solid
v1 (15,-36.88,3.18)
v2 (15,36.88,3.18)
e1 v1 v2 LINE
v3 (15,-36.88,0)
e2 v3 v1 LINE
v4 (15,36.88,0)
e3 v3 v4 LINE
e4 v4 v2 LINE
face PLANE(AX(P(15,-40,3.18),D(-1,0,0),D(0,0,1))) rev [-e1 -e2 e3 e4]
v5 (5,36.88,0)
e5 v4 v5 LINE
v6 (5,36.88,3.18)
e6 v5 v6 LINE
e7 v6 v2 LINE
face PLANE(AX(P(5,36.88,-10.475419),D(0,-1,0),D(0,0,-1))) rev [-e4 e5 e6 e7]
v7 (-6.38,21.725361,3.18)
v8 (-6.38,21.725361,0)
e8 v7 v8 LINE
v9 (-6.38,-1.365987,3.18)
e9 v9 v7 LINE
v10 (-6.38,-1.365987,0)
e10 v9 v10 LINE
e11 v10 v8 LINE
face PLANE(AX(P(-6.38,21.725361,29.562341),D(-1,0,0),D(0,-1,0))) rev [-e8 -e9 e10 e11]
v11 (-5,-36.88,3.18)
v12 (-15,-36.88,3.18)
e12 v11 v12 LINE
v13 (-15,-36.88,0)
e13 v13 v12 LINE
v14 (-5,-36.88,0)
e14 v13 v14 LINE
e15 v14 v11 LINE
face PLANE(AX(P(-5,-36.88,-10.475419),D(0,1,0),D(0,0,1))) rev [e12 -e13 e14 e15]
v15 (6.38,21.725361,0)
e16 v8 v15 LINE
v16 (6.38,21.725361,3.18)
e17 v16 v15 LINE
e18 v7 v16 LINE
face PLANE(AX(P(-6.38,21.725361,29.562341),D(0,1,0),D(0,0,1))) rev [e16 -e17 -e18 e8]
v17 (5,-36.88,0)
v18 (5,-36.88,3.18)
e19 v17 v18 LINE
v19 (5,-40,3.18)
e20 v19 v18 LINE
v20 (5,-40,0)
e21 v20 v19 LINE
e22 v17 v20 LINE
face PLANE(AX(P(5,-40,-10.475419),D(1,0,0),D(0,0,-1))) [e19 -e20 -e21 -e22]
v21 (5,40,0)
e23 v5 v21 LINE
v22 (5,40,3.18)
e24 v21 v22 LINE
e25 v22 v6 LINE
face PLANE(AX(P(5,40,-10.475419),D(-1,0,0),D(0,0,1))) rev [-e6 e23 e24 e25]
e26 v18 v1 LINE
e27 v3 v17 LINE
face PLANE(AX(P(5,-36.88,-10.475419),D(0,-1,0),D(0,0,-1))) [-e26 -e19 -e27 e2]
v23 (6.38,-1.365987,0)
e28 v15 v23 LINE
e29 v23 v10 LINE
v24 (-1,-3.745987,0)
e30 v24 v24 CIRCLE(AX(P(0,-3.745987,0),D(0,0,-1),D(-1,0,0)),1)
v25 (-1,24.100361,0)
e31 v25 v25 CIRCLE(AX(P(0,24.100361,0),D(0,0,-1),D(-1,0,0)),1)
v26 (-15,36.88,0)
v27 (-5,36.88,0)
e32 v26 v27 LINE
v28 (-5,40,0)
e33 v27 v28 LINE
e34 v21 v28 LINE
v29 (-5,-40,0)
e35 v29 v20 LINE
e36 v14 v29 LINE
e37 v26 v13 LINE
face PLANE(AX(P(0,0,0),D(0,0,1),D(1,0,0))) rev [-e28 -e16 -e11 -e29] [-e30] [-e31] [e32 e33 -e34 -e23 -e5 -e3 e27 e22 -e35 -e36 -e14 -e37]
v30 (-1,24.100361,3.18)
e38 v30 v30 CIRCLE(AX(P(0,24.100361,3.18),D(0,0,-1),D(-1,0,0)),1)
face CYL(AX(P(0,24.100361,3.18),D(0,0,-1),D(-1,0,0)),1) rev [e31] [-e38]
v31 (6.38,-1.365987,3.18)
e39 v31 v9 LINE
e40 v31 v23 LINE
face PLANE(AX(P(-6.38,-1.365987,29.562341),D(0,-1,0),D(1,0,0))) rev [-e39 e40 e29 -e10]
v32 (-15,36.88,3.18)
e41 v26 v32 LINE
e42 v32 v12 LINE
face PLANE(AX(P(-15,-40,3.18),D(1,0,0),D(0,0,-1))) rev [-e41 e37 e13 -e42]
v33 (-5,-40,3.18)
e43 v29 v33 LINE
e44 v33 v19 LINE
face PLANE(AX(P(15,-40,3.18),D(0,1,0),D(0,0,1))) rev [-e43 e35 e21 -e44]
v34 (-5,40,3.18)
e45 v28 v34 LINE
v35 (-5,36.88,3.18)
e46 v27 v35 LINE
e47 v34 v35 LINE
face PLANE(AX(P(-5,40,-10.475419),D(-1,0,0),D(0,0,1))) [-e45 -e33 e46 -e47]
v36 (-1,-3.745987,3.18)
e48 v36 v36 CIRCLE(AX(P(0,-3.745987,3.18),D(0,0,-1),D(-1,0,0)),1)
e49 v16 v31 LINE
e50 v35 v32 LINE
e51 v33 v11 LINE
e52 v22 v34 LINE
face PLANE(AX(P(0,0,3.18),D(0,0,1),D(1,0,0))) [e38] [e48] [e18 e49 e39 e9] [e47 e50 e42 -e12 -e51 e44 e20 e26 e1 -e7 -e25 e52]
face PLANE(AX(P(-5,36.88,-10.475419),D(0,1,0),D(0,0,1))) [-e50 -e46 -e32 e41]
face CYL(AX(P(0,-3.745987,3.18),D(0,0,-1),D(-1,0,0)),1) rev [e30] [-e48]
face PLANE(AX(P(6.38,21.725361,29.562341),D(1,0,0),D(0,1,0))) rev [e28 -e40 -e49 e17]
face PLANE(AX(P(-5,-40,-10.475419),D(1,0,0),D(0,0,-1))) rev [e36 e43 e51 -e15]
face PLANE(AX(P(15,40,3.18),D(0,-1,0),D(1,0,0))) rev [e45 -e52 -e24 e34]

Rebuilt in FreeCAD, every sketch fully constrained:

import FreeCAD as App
import Part
import Sketcher

V = App.Vector
Q = App.Units.Quantity

doc = App.newDocument("Part")
body = doc.addObject("PartDesign::Body", "Body")

sketch1 = doc.addObject("Sketcher::SketchObject", "Sketch")
body.addObject(sketch1)
sketch1.AttachmentSupport = (doc.XY_Plane, [""])
sketch1.MapMode = "FlatFace"
sketch1.addGeometry([
    Part.LineSegment(V(-15, 40, 0), V(-15, -40, 0)),
    Part.LineSegment(V(-15, -40, 0), V(15, -40, 0)),
    Part.LineSegment(V(15, -40, 0), V(15, 40, 0)),
    Part.LineSegment(V(15, 40, 0), V(-15, 40, 0)),
], False)
sketch1.addConstraint([
    Sketcher.Constraint("Coincident", 0, 2, 1, 1),
    Sketcher.Constraint("Coincident", 1, 2, 2, 1),
    Sketcher.Constraint("Coincident", 2, 2, 3, 1),
    Sketcher.Constraint("Coincident", 3, 2, 0, 1),
    Sketcher.Constraint("Vertical", 0),
    Sketcher.Constraint("Horizontal", 1),
    Sketcher.Constraint("Vertical", 2),
    Sketcher.Constraint("Horizontal", 3),
    Sketcher.Constraint("Symmetric", 0, 2, 2, 2, -1, 1),
    Sketcher.Constraint("DistanceX", 1, 1, 1, 2, Q("30 mm")),
    Sketcher.Constraint("DistanceY", 0, 2, 0, 1, Q("80 mm")),
])
pad1 = doc.addObject("PartDesign::Pad", "Pad")
body.addObject(pad1)
pad1.Profile = sketch1
pad1.Length = 3.18

sketch2 = doc.addObject("Sketcher::SketchObject", "Sketch001")
body.addObject(sketch2)
sketch2.AttachmentSupport = (doc.XY_Plane, [""])
sketch2.MapMode = "FlatFace"
sketch2.AttachmentOffset = App.Placement(V(0, 0, 3.18), App.Rotation())
sketch2.addGeometry([
    Part.LineSegment(V(5, 40, 0), V(5, 36.88, 0)),
    Part.LineSegment(V(5, 36.88, 0), V(15, 36.88, 0)),
    Part.LineSegment(V(15, 36.88, 0), V(15, 40, 0)),
    Part.LineSegment(V(15, 40, 0), V(5, 40, 0)),
], False)
sketch2.addConstraint([
    Sketcher.Constraint("Coincident", 0, 2, 1, 1),
    Sketcher.Constraint("Coincident", 1, 2, 2, 1),
    Sketcher.Constraint("Coincident", 2, 2, 3, 1),
    Sketcher.Constraint("Coincident", 3, 2, 0, 1),
    Sketcher.Constraint("Vertical", 0),
    Sketcher.Constraint("Horizontal", 1),
    Sketcher.Constraint("Vertical", 2),
    Sketcher.Constraint("Horizontal", 3),
    Sketcher.Constraint("DistanceX", 1, 1, 1, 2, Q("10 mm")),
    Sketcher.Constraint("DistanceX", -1, 1, 0, 2, Q("5 mm")),
    Sketcher.Constraint("DistanceY", -1, 1, 2, 2, Q("40 mm")),
    Sketcher.Constraint("DistanceY", 0, 2, 0, 1, Q("3.12 mm")),
])
pocket1 = doc.addObject("PartDesign::Pocket", "Pocket")
body.addObject(pocket1)
pocket1.Profile = sketch2
pocket1.Length = 3.18
doc.recompute()

mirrored = doc.addObject("PartDesign::Mirrored", "Mirrored")
body.addObject(mirrored)
mirrored.Originals = [pocket1]
mirrored.MirrorPlane = (doc.YZ_Plane, [""])
body.Tip = mirrored
doc.recompute()

mirrored2 = doc.addObject("PartDesign::Mirrored", "Mirrored001")
body.addObject(mirrored2)
mirrored2.Originals = [pocket1]
mirrored2.MirrorPlane = (doc.XZ_Plane, [""])
body.Tip = mirrored2

sketch3 = doc.addObject("Sketcher::SketchObject", "Sketch002")
body.addObject(sketch3)
sketch3.AttachmentSupport = (doc.XY_Plane, [""])
sketch3.MapMode = "FlatFace"
sketch3.AttachmentOffset = App.Placement(V(0, 0, 3.18), App.Rotation())
sketch3.addGeometry([
    Part.LineSegment(V(-5, -40, 0), V(-5, -36.88, 0)),
    Part.LineSegment(V(-5, -36.88, 0), V(-15, -36.88, 0)),
    Part.LineSegment(V(-15, -36.88, 0), V(-15, -40, 0)),
    Part.LineSegment(V(-15, -40, 0), V(-5, -40, 0)),
], False)
sketch3.addConstraint([
    Sketcher.Constraint("Coincident", 0, 2, 1, 1),
    Sketcher.Constraint("Coincident", 1, 2, 2, 1),
    Sketcher.Constraint("Coincident", 2, 2, 3, 1),
    Sketcher.Constraint("Coincident", 3, 2, 0, 1),
    Sketcher.Constraint("Vertical", 0),
    Sketcher.Constraint("Horizontal", 1),
    Sketcher.Constraint("Vertical", 2),
    Sketcher.Constraint("Horizontal", 3),
    Sketcher.Constraint("DistanceX", 1, 2, 1, 1, Q("10 mm")),
    Sketcher.Constraint("DistanceX", 0, 2, -1, 1, Q("5 mm")),
    Sketcher.Constraint("DistanceY", 2, 2, -1, 1, Q("40 mm")),
    Sketcher.Constraint("DistanceY", 0, 1, 0, 2, Q("3.12 mm")),
])
pocket2 = doc.addObject("PartDesign::Pocket", "Pocket001")
body.addObject(pocket2)
pocket2.Profile = sketch3
pocket2.Length = 3.18

sketch4 = doc.addObject("Sketcher::SketchObject", "Sketch003")
body.addObject(sketch4)
sketch4.AttachmentSupport = (doc.XY_Plane, [""])
sketch4.MapMode = "FlatFace"
sketch4.addGeometry([
    Part.LineSegment(V(6.38, 21.725361, 0), V(6.38, -1.365987, 0)),
    Part.LineSegment(V(6.38, -1.365987, 0), V(-6.38, -1.365987, 0)),
    Part.LineSegment(V(-6.38, -1.365987, 0), V(-6.38, 21.725361, 0)),
    Part.LineSegment(V(-6.38, 21.725361, 0), V(6.38, 21.725361, 0)),
], False)
sketch4.addConstraint([
    Sketcher.Constraint("Coincident", 0, 2, 1, 1),
    Sketcher.Constraint("Coincident", 1, 2, 2, 1),
    Sketcher.Constraint("Coincident", 2, 2, 3, 1),
    Sketcher.Constraint("Coincident", 3, 2, 0, 1),
    Sketcher.Constraint("Vertical", 0),
    Sketcher.Constraint("Horizontal", 1),
    Sketcher.Constraint("Vertical", 2),
    Sketcher.Constraint("Horizontal", 3),
    Sketcher.Constraint("DistanceX", 1, 2, 1, 1, Q("12.76 mm")),
    Sketcher.Constraint("DistanceX", -1, 1, 0, 2, Q("6.38 mm")),
    Sketcher.Constraint("DistanceY", 0, 2, 0, 1, Q("23.091348 mm")),
    Sketcher.Constraint("DistanceY", -1, 1, 2, 2, Q("21.725361 mm")),
])
pocket3 = doc.addObject("PartDesign::Pocket", "Pocket002")
body.addObject(pocket3)
pocket3.Profile = sketch4
pocket3.Length = 3.18
pocket3.Reversed = True

sketch5 = doc.addObject("Sketcher::SketchObject", "Sketch004")
body.addObject(sketch5)
sketch5.AttachmentSupport = (doc.XY_Plane, [""])
sketch5.MapMode = "FlatFace"
sketch5.addGeometry([
    Part.Circle(V(0, 24.100361, 0), V(0, 0, 1), 1),
    Part.Circle(V(0, -3.745987, 0), V(0, 0, 1), 1),
], False)
sketch5.addConstraint([
    Sketcher.Constraint("Equal", 0, 1),
    Sketcher.Constraint("PointOnObject", 0, 3, -2),
    Sketcher.Constraint("PointOnObject", 1, 3, -2),
    Sketcher.Constraint("Diameter", 0, Q("2 mm")),
    Sketcher.Constraint("DistanceY", -1, 1, 0, 3, Q("24.100361 mm")),
    Sketcher.Constraint("DistanceY", 1, 3, -1, 1, Q("3.745987 mm")),
])
pocket4 = doc.addObject("PartDesign::Pocket", "Pocket003")
body.addObject(pocket4)
pocket4.Profile = sketch5
pocket4.Type = "ThroughAll"
pocket4.Reversed = True

doc.recompute()
